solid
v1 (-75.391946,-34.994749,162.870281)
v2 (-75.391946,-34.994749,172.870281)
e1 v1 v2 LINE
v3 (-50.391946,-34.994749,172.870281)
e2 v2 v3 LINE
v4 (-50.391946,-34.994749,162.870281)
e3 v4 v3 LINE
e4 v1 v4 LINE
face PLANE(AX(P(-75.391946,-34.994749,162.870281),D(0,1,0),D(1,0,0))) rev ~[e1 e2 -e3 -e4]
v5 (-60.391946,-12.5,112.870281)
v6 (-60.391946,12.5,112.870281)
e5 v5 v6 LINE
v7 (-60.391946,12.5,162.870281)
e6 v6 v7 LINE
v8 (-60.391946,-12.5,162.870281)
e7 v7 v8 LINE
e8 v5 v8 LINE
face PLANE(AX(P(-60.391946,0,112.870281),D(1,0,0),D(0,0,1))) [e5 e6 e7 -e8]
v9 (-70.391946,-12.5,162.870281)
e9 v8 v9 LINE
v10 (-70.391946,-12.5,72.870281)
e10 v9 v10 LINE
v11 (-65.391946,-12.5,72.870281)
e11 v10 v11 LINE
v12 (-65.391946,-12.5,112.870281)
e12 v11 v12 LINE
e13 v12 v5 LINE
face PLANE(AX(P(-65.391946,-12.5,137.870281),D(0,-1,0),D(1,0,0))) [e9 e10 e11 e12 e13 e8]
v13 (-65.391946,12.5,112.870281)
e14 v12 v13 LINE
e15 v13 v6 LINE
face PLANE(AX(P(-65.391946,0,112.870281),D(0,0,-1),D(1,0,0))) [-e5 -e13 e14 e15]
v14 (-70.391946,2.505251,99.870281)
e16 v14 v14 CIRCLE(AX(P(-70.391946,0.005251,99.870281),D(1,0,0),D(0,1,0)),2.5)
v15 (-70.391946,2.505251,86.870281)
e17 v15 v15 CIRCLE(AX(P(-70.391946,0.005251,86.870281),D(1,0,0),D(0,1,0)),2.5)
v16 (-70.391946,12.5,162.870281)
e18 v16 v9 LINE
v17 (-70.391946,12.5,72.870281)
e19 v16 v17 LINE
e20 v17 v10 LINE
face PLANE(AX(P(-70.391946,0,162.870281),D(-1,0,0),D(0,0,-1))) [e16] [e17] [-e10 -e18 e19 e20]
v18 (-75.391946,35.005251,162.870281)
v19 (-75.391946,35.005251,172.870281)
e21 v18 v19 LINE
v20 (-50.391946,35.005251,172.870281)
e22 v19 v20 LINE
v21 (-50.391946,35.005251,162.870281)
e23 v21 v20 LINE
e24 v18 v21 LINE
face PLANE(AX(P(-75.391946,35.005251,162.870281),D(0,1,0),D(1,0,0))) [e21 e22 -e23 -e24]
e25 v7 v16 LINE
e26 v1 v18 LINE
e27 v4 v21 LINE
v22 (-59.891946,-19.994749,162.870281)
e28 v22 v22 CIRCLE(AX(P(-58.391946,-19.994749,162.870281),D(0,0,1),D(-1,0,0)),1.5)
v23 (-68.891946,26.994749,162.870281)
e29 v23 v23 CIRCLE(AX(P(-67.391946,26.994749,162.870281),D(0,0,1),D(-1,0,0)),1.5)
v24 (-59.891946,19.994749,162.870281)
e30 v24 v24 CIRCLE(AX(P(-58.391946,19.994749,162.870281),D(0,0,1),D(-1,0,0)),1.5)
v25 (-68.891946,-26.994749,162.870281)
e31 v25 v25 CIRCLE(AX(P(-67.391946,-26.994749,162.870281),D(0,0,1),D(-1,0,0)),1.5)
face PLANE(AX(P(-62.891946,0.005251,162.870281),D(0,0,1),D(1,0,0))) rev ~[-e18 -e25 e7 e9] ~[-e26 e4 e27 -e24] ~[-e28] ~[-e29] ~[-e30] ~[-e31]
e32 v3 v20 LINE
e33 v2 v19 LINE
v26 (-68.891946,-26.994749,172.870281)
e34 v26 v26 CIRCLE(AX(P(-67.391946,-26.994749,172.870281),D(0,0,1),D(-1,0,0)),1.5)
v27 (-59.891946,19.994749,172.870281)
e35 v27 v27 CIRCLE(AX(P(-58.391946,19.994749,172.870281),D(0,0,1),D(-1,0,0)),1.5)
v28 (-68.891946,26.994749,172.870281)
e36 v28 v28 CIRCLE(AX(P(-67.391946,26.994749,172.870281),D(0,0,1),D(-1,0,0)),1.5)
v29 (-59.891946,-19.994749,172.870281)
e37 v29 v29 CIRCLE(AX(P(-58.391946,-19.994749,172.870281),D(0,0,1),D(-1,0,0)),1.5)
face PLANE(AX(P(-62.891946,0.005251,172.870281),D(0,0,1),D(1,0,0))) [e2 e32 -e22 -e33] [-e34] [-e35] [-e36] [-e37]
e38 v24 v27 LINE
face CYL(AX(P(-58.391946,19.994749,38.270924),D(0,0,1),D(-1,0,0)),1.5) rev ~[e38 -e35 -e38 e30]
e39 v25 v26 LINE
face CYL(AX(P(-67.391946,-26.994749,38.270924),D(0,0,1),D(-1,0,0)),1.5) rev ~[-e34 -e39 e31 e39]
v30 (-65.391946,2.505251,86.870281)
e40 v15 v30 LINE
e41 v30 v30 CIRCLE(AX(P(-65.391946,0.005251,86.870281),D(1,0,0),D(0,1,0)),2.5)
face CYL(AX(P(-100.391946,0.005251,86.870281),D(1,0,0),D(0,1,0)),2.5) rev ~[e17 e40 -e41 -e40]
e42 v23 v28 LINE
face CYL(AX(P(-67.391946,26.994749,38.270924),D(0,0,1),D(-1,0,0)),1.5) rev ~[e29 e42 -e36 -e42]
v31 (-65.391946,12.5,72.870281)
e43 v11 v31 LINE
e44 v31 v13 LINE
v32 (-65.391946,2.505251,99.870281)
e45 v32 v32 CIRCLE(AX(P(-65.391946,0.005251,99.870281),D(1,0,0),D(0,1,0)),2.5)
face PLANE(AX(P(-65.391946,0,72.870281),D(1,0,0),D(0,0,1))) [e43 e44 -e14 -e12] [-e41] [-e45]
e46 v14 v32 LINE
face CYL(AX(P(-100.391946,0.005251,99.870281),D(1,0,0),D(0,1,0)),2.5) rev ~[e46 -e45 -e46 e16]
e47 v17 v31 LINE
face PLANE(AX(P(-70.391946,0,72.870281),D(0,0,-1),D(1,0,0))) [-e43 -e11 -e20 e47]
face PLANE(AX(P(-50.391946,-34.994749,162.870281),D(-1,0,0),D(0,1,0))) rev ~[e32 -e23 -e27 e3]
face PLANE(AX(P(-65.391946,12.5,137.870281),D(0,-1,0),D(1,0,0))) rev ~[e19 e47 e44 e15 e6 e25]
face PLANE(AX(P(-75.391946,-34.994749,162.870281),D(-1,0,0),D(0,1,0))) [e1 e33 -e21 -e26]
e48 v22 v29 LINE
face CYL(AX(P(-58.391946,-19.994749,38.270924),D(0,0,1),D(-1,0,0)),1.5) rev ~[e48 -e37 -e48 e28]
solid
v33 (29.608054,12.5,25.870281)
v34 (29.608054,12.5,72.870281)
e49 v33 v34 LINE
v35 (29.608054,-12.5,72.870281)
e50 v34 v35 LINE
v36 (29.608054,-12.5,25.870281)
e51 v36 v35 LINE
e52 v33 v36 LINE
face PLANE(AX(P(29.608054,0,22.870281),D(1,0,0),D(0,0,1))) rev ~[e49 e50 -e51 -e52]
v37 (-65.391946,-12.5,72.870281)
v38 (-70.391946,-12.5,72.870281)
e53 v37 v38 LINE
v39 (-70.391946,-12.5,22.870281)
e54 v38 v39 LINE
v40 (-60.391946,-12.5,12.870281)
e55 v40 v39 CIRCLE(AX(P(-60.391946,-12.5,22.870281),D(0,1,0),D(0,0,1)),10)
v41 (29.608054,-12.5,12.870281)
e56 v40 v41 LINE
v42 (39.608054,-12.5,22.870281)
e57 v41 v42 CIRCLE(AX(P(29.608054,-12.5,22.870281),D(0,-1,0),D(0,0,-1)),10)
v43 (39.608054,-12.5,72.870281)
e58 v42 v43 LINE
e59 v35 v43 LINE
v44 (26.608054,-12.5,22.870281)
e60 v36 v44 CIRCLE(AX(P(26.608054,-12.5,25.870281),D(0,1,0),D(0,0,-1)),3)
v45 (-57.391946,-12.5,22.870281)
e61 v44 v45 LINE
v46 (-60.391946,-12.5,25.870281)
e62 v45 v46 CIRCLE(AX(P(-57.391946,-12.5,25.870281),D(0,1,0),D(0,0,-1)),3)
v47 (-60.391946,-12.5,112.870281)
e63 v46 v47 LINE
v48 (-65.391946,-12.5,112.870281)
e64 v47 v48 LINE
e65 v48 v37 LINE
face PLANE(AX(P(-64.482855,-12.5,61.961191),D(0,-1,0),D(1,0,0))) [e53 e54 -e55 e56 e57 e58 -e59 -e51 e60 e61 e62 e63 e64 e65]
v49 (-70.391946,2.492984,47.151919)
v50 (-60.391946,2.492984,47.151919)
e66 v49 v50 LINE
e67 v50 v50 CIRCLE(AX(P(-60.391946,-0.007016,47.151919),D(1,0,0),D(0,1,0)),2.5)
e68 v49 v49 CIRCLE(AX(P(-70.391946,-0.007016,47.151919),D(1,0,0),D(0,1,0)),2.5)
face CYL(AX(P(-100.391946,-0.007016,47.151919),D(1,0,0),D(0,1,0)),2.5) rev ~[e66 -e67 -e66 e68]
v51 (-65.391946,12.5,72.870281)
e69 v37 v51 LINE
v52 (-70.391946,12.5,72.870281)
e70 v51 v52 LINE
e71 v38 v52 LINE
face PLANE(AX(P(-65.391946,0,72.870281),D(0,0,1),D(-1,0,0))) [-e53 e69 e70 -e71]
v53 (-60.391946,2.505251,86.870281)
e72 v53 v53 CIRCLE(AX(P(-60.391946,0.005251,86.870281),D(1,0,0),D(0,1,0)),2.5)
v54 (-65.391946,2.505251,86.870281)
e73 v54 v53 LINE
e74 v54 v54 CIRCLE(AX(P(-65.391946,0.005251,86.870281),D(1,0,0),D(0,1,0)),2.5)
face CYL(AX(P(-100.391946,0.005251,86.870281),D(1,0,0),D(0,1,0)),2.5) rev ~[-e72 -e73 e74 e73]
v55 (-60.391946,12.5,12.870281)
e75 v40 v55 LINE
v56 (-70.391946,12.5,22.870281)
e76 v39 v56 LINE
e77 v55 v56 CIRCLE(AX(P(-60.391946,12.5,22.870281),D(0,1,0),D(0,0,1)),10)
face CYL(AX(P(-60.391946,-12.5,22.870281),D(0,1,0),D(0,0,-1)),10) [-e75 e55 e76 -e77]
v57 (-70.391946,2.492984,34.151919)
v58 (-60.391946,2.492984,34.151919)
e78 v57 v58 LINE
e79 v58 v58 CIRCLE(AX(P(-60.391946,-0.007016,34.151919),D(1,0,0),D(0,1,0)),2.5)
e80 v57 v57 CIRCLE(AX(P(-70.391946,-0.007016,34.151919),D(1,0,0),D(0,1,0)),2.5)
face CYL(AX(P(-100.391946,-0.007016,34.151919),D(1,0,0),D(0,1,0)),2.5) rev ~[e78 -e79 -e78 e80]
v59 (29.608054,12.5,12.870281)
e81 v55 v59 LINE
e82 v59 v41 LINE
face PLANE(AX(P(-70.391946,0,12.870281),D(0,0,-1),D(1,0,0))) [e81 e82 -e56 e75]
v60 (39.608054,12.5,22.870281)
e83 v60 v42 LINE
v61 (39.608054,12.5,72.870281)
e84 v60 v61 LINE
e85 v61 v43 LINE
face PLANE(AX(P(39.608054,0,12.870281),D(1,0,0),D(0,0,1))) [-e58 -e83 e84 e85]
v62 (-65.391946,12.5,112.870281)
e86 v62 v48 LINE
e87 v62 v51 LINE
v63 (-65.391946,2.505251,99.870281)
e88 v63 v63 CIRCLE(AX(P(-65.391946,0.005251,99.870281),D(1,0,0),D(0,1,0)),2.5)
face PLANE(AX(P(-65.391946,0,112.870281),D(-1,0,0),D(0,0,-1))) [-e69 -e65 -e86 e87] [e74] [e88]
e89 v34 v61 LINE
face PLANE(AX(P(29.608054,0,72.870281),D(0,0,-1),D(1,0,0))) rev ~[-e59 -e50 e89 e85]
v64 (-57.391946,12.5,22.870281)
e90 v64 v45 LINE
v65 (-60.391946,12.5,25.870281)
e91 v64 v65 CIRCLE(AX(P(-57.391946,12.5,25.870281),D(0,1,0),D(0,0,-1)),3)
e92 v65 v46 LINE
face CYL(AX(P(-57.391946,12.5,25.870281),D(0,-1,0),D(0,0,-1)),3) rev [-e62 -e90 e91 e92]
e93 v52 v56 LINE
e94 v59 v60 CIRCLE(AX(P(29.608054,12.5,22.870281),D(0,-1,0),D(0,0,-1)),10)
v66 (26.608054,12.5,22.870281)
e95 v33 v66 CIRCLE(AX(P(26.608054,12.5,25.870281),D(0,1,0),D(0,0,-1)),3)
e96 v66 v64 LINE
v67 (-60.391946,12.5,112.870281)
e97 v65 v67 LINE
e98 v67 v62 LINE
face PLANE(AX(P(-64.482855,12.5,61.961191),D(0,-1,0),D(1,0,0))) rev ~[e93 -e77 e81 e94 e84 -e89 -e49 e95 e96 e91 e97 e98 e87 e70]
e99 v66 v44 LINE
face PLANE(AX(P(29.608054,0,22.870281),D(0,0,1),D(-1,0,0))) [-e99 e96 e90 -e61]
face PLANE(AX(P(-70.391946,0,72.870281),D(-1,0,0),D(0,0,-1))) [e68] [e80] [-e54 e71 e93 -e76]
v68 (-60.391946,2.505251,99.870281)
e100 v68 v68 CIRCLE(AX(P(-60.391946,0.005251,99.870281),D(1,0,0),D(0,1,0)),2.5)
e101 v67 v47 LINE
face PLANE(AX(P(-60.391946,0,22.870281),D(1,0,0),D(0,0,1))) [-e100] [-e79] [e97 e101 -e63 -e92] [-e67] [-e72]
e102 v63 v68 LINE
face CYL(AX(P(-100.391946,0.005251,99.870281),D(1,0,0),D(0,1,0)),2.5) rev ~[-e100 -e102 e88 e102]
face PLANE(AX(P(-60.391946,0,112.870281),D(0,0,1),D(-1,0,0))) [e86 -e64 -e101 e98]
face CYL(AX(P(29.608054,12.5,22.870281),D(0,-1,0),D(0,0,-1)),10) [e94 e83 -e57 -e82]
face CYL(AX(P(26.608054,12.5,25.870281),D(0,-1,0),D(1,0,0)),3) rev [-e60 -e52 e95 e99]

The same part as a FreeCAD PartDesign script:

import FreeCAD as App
import Part
import Sketcher


def edges_at(feature, points):
    """Names of the edges that pass closest to the given points."""
    edges = feature.Shape.Edges
    near = lambda p: min(range(len(edges)), key=lambda i: edges[i].distToShape(Part.Vertex(*p))[0])
    return sorted({f"Edge{near(p) + 1}" for p in points})

doc = App.newDocument("Part")
body = doc.addObject("PartDesign::Body", "Body")

# Sketch on XZ plane
sketch1 = body.newObject("Sketcher::SketchObject", "Sketch")
sketch1.AttachmentSupport = (doc.getObject("XZ_Plane"), [""])
sketch1.MapMode = "FlatFace"
sketch1.addGeometry(Part.LineSegment(App.Vector(-70, 13, 0), App.Vector(40, 13, 0)), False)
sketch1.addGeometry(Part.LineSegment(App.Vector(40, 13, 0), App.Vector(40, 73, 0)), False)
sketch1.addGeometry(Part.LineSegment(App.Vector(40, 73, 0), App.Vector(30, 73, 0)), False)
sketch1.addGeometry(Part.LineSegment(App.Vector(30, 73, 0), App.Vector(30, 23, 0)), False)
sketch1.addGeometry(Part.LineSegment(App.Vector(30, 23, 0), App.Vector(-60, 23, 0)), False)
sketch1.addGeometry(Part.LineSegment(App.Vector(-60, 23, 0), App.Vector(-60, 113, 0)), False)
sketch1.addGeometry(Part.LineSegment(App.Vector(-60, 113, 0), App.Vector(-65, 113, 0)), False)
sketch1.addGeometry(Part.LineSegment(App.Vector(-65, 113, 0), App.Vector(-65, 73, 0)), False)
sketch1.addGeometry(Part.LineSegment(App.Vector(-65, 73, 0), App.Vector(-70, 73, 0)), False)
sketch1.addGeometry(Part.LineSegment(App.Vector(-70, 73, 0), App.Vector(-70, 13, 0)), False)
sketch1.addConstraint(Sketcher.Constraint("Coincident", 0, 2, 1, 1))
sketch1.addConstraint(Sketcher.Constraint("Coincident", 1, 2, 2, 1))
sketch1.addConstraint(Sketcher.Constraint("Coincident", 2, 2, 3, 1))
sketch1.addConstraint(Sketcher.Constraint("Coincident", 3, 2, 4, 1))
sketch1.addConstraint(Sketcher.Constraint("Coincident", 4, 2, 5, 1))
sketch1.addConstraint(Sketcher.Constraint("Coincident", 5, 2, 6, 1))
sketch1.addConstraint(Sketcher.Constraint("Coincident", 6, 2, 7, 1))
sketch1.addConstraint(Sketcher.Constraint("Coincident", 7, 2, 8, 1))
sketch1.addConstraint(Sketcher.Constraint("Coincident", 8, 2, 9, 1))
sketch1.addConstraint(Sketcher.Constraint("Coincident", 9, 2, 0, 1))
sketch1.addConstraint(Sketcher.Constraint("Horizontal", 0))
sketch1.addConstraint(Sketcher.Constraint("Vertical", 1))
sketch1.addConstraint(Sketcher.Constraint("Horizontal", 2))
sketch1.addConstraint(Sketcher.Constraint("Vertical", 3))
sketch1.addConstraint(Sketcher.Constraint("Horizontal", 4))
sketch1.addConstraint(Sketcher.Constraint("Vertical", 5))
sketch1.addConstraint(Sketcher.Constraint("Horizontal", 6))
sketch1.addConstraint(Sketcher.Constraint("Vertical", 7))
sketch1.addConstraint(Sketcher.Constraint("Horizontal", 8))
sketch1.addConstraint(Sketcher.Constraint("Vertical", 9))
sketch1.addConstraint(Sketcher.Constraint("Horizontal", 2, 2, 7, 2))
sketch1.addConstraint(Sketcher.Constraint("Equal", 6, 8))
sketch1.addConstraint(Sketcher.Constraint("Equal", 4, 5))
sketch1.addConstraint(Sketcher.Constraint("DistanceX", 0, 1, 0, 2, 110.0))
sketch1.addConstraint(Sketcher.Constraint("DistanceX", 2, 2, 2, 1, 10.0))
sketch1.addConstraint(Sketcher.Constraint("DistanceX", 4, 2, 4, 1, 90.0))
sketch1.addConstraint(Sketcher.Constraint("DistanceY", 1, 1, 1, 2, 60.0))
sketch1.addConstraint(Sketcher.Constraint("DistanceY", 3, 2, 3, 1, 50.0))
sketch1.addConstraint(Sketcher.Constraint("DistanceY", -1, 1, 0, 2, 12.870281))
sketch1.addConstraint(Sketcher.Constraint("DistanceX", -1, 1, 0, 2, 39.608054))
pad1 = body.newObject("PartDesign::Pad", "Pad")
pad1.Profile = sketch1
pad1.Length = 25
pad1.Midplane = True

# Sketch on YZ plane
sketch2 = body.newObject("Sketcher::SketchObject", "Sketch001")
sketch2.AttachmentSupport = (doc.getObject("YZ_Plane"), [""])
sketch2.MapMode = "FlatFace"
sketch2.AttachmentOffset = App.Placement(App.Vector(0, 0, -70.391946), App.Rotation())
sketch2.addGeometry(Part.Circle(App.Vector(0, 99.9, 0), App.Vector(0, 0, 1), 2.5), False)
sketch2.addGeometry(Part.Circle(App.Vector(0, 86.9, 0), App.Vector(0, 0, 1), 2.5), False)
sketch2.addGeometry(Part.Circle(App.Vector(0, 47.2, 0), App.Vector(0, 0, 1), 2.5), False)
sketch2.addGeometry(Part.Circle(App.Vector(0, 34.2, 0), App.Vector(0, 0, 1), 2.5), False)
sketch2.addConstraint(Sketcher.Constraint("Equal", 0, 1))
sketch2.addConstraint(Sketcher.Constraint("Equal", 1, 2))
sketch2.addConstraint(Sketcher.Constraint("Equal", 2, 3))
sketch2.addConstraint(Sketcher.Constraint("Vertical", 0, 3, 1, 3))
sketch2.addConstraint(Sketcher.Constraint("Vertical", 2, 3, 3, 3))
sketch2.addConstraint(Sketcher.Constraint("Diameter", 0, 5.0))
sketch2.addConstraint(Sketcher.Constraint("DistanceY", 1, 3, 0, 3, 13.0))
sketch2.addConstraint(Sketcher.Constraint("DistanceY", 3, 3, 2, 3, 13.0))
sketch2.addConstraint(Sketcher.Constraint("DistanceX", -1, 1, 0, 3, 0.005251))
sketch2.addConstraint(Sketcher.Constraint("DistanceY", -1, 1, 0, 3, 99.870281))
sketch2.addConstraint(Sketcher.Constraint("DistanceY", -1, 1, 2, 3, 47.151919))
sketch2.addConstraint(Sketcher.Constraint("DistanceX", 2, 3, -1, 1, 0.007016))
doc.recompute()
hole = body.newObject("PartDesign::Hole", "Hole")
hole.Profile = sketch2
hole.ThreadType = "None"
hole.Diameter = 5
hole.DepthType = "Dimension"
hole.Depth = 30
hole.DrillPoint = "Angled"
hole.DrillPointAngle = 118
hole.Reversed = True
doc.recompute()

fillet = body.newObject("PartDesign::Fillet", "Fillet")
fillet.Base = (hole, edges_at(hole, [(-70.392, 0, 12.87), (39.608, 0, 12.87)]))
fillet.Radius = 10
doc.recompute()

fillet2 = body.newObject("PartDesign::Fillet", "Fillet001")
fillet2.Base = (fillet, edges_at(fillet, [(29.608, 0, 22.87), (-60.392, 0, 22.87)]))
fillet2.Radius = 3
body2 = doc.addObject("PartDesign::Body", "Body001")

# Sketch on XZ plane
sketch3 = body2.newObject("Sketcher::SketchObject", "Sketch002")
sketch3.AttachmentSupport = (doc.getObject("XZ_Plane001"), [""])
sketch3.MapMode = "FlatFace"
sketch3.addGeometry(Part.LineSegment(App.Vector(-60, 113, 0), App.Vector(-60, 163, 0)), False)
sketch3.addGeometry(Part.LineSegment(App.Vector(-60, 163, 0), App.Vector(-70, 163, 0)), False)
sketch3.addGeometry(Part.LineSegment(App.Vector(-70, 163, 0), App.Vector(-70, 73, 0)), False)
sketch3.addGeometry(Part.LineSegment(App.Vector(-70, 73, 0), App.Vector(-65, 73, 0)), False)
sketch3.addGeometry(Part.LineSegment(App.Vector(-65, 73, 0), App.Vector(-65, 113, 0)), False)
sketch3.addGeometry(Part.LineSegment(App.Vector(-65, 113, 0), App.Vector(-60, 113, 0)), False)
sketch3.addConstraint(Sketcher.Constraint("Coincident", 0, 2, 1, 1))
sketch3.addConstraint(Sketcher.Constraint("Coincident", 1, 2, 2, 1))
sketch3.addConstraint(Sketcher.Constraint("Coincident", 2, 2, 3, 1))
sketch3.addConstraint(Sketcher.Constraint("Coincident", 3, 2, 4, 1))
sketch3.addConstraint(Sketcher.Constraint("Coincident", 4, 2, 5, 1))
sketch3.addConstraint(Sketcher.Constraint("Coincident", 5, 2, 0, 1))
sketch3.addConstraint(Sketcher.Constraint("Vertical", 0))
sketch3.addConstraint(Sketcher.Constraint("Horizontal", 1))
sketch3.addConstraint(Sketcher.Constraint("Vertical", 2))
sketch3.addConstraint(Sketcher.Constraint("Horizontal", 3))
sketch3.addConstraint(Sketcher.Constraint("Vertical", 4))
sketch3.addConstraint(Sketcher.Constraint("Horizontal", 5))
sketch3.addConstraint(Sketcher.Constraint("Equal", 3, 5))
sketch3.addConstraint(Sketcher.Constraint("DistanceX", 1, 2, 1, 1, 10.0))
sketch3.addConstraint(Sketcher.Constraint("DistanceY", 0, 1, 0, 2, 50.0))
sketch3.addConstraint(Sketcher.Constraint("DistanceY", 2, 2, 2, 1, 90.0))
sketch3.addConstraint(Sketcher.Constraint("DistanceY", -1, 1, 0, 2, 162.870281))
sketch3.addConstraint(Sketcher.Constraint("DistanceX", 0, 2, -1, 1, 60.391946))
pad2 = body2.newObject("PartDesign::Pad", "Pad001")
pad2.Profile = sketch3
pad2.Length = 25
pad2.Midplane = True

# Sketch on YZ plane
sketch4 = body2.newObject("Sketcher::SketchObject", "Sketch003")
sketch4.AttachmentSupport = (doc.getObject("YZ_Plane001"), [""])
sketch4.MapMode = "FlatFace"
sketch4.AttachmentOffset = App.Placement(App.Vector(0, 0, -70.391946), App.Rotation())
sketch4.addGeometry(Part.Circle(App.Vector(0, 99.9, 0), App.Vector(0, 0, 1), 2.5), False)
sketch4.addGeometry(Part.Circle(App.Vector(0, 86.9, 0), App.Vector(0, 0, 1), 2.5), False)
sketch4.addGeometry(Part.Circle(App.Vector(0, 47.2, 0), App.Vector(0, 0, 1), 2.5), False)
sketch4.addGeometry(Part.Circle(App.Vector(0, 34.2, 0), App.Vector(0, 0, 1), 2.5), False)
sketch4.addConstraint(Sketcher.Constraint("Equal", 0, 1))
sketch4.addConstraint(Sketcher.Constraint("Equal", 1, 2))
sketch4.addConstraint(Sketcher.Constraint("Equal", 2, 3))
sketch4.addConstraint(Sketcher.Constraint("Vertical", 0, 3, 1, 3))
sketch4.addConstraint(Sketcher.Constraint("Vertical", 2, 3, 3, 3))
sketch4.addConstraint(Sketcher.Constraint("Diameter", 0, 5.0))
sketch4.addConstraint(Sketcher.Constraint("DistanceY", 1, 3, 0, 3, 13.0))
sketch4.addConstraint(Sketcher.Constraint("DistanceY", 3, 3, 2, 3, 13.0))
sketch4.addConstraint(Sketcher.Constraint("DistanceX", -1, 1, 0, 3, 0.005251))
sketch4.addConstraint(Sketcher.Constraint("DistanceY", -1, 1, 0, 3, 99.870281))
sketch4.addConstraint(Sketcher.Constraint("DistanceY", -1, 1, 2, 3, 47.151919))
sketch4.addConstraint(Sketcher.Constraint("DistanceX", 2, 3, -1, 1, 0.007016))
doc.recompute()
hole2 = body2.newObject("PartDesign::Hole", "Hole001")
hole2.Profile = sketch4
hole2.ThreadType = "None"
hole2.Diameter = 5
hole2.DepthType = "Dimension"
hole2.Depth = 30
hole2.DrillPoint = "Angled"
hole2.DrillPointAngle = 118
hole2.Reversed = True

# Sketch on XY plane
sketch5 = body2.newObject("Sketcher::SketchObject", "Sketch004")
sketch5.AttachmentSupport = (doc.getObject("XY_Plane001"), [""])
sketch5.MapMode = "FlatFace"
sketch5.AttachmentOffset = App.Placement(App.Vector(0, 0, 162.870281), App.Rotation())
sketch5.addGeometry(Part.LineSegment(App.Vector(-75, 35, 0), App.Vector(-75, -35, 0)), False)
sketch5.addGeometry(Part.LineSegment(App.Vector(-75, -35, 0), App.Vector(-50, -35, 0)), False)
sketch5.addGeometry(Part.LineSegment(App.Vector(-50, -35, 0), App.Vector(-50, 35, 0)), False)
sketch5.addGeometry(Part.LineSegment(App.Vector(-50, 35, 0), App.Vector(-75, 35, 0)), False)
sketch5.addConstraint(Sketcher.Constraint("Coincident", 0, 2, 1, 1))
sketch5.addConstraint(Sketcher.Constraint("Coincident", 1, 2, 2, 1))
sketch5.addConstraint(Sketcher.Constraint("Coincident", 2, 2, 3, 1))
sketch5.addConstraint(Sketcher.Constraint("Coincident", 3, 2, 0, 1))
sketch5.addConstraint(Sketcher.Constraint("Vertical", 0))
sketch5.addConstraint(Sketcher.Constraint("Horizontal", 1))
sketch5.addConstraint(Sketcher.Constraint("Vertical", 2))
sketch5.addConstraint(Sketcher.Constraint("Horizontal", 3))
sketch5.addConstraint(Sketcher.Constraint("DistanceX", 1, 1, 1, 2, 25.0))
sketch5.addConstraint(Sketcher.Constraint("DistanceY", 0, 2, 0, 1, 70.0))
sketch5.addConstraint(Sketcher.Constraint("DistanceY", 0, 2, -1, 1, 34.994749))
sketch5.addConstraint(Sketcher.Constraint("DistanceX", 0, 2, -1, 1, 75.391946))
pad3 = body2.newObject("PartDesign::Pad", "Pad002")
pad3.Profile = sketch5
pad3.Length = 10

# Sketch on XY plane
sketch6 = body2.newObject("Sketcher::SketchObject", "Sketch005")
sketch6.AttachmentSupport = (doc.getObject("XY_Plane001"), [""])
sketch6.MapMode = "FlatFace"
sketch6.AttachmentOffset = App.Placement(App.Vector(0, 0, 162.870281), App.Rotation())
sketch6.addGeometry(Part.Circle(App.Vector(-58.4, 20, 0), App.Vector(0, 0, 1), 1.5), False)
sketch6.addGeometry(Part.Circle(App.Vector(-67.4, 27, 0), App.Vector(0, 0, 1), 1.5), False)
sketch6.addGeometry(Part.Circle(App.Vector(-58.4, -20, 0), App.Vector(0, 0, 1), 1.5), False)
sketch6.addGeometry(Part.Circle(App.Vector(-67.4, -27, 0), App.Vector(0, 0, 1), 1.5), False)
sketch6.addConstraint(Sketcher.Constraint("Equal", 0, 1))
sketch6.addConstraint(Sketcher.Constraint("Equal", 1, 2))
sketch6.addConstraint(Sketcher.Constraint("Equal", 2, 3))
sketch6.addConstraint(Sketcher.Constraint("Symmetric", 0, 3, 2, 3, -1))
sketch6.addConstraint(Sketcher.Constraint("Symmetric", 1, 3, 3, 3, -1))
sketch6.addConstraint(Sketcher.Constraint("Diameter", 0, 3.0))
sketch6.addConstraint(Sketcher.Constraint("DistanceX", 1, 3, 0, 3, 9.0))
sketch6.addConstraint(Sketcher.Constraint("DistanceY", 0, 3, 1, 3, 7.0))
sketch6.addConstraint(Sketcher.Constraint("DistanceY", 2, 3, 0, 3, 39.989498))
sketch6.addConstraint(Sketcher.Constraint("DistanceX", 0, 3, -1, 1, 58.391946))
doc.recompute()
hole3 = body2.newObject("PartDesign::Hole", "Hole002")
hole3.Profile = sketch6
hole3.ThreadType = "None"
hole3.Diameter = 3
hole3.DepthType = "ThroughAll"
hole3.Reversed = True

doc.recompute()
